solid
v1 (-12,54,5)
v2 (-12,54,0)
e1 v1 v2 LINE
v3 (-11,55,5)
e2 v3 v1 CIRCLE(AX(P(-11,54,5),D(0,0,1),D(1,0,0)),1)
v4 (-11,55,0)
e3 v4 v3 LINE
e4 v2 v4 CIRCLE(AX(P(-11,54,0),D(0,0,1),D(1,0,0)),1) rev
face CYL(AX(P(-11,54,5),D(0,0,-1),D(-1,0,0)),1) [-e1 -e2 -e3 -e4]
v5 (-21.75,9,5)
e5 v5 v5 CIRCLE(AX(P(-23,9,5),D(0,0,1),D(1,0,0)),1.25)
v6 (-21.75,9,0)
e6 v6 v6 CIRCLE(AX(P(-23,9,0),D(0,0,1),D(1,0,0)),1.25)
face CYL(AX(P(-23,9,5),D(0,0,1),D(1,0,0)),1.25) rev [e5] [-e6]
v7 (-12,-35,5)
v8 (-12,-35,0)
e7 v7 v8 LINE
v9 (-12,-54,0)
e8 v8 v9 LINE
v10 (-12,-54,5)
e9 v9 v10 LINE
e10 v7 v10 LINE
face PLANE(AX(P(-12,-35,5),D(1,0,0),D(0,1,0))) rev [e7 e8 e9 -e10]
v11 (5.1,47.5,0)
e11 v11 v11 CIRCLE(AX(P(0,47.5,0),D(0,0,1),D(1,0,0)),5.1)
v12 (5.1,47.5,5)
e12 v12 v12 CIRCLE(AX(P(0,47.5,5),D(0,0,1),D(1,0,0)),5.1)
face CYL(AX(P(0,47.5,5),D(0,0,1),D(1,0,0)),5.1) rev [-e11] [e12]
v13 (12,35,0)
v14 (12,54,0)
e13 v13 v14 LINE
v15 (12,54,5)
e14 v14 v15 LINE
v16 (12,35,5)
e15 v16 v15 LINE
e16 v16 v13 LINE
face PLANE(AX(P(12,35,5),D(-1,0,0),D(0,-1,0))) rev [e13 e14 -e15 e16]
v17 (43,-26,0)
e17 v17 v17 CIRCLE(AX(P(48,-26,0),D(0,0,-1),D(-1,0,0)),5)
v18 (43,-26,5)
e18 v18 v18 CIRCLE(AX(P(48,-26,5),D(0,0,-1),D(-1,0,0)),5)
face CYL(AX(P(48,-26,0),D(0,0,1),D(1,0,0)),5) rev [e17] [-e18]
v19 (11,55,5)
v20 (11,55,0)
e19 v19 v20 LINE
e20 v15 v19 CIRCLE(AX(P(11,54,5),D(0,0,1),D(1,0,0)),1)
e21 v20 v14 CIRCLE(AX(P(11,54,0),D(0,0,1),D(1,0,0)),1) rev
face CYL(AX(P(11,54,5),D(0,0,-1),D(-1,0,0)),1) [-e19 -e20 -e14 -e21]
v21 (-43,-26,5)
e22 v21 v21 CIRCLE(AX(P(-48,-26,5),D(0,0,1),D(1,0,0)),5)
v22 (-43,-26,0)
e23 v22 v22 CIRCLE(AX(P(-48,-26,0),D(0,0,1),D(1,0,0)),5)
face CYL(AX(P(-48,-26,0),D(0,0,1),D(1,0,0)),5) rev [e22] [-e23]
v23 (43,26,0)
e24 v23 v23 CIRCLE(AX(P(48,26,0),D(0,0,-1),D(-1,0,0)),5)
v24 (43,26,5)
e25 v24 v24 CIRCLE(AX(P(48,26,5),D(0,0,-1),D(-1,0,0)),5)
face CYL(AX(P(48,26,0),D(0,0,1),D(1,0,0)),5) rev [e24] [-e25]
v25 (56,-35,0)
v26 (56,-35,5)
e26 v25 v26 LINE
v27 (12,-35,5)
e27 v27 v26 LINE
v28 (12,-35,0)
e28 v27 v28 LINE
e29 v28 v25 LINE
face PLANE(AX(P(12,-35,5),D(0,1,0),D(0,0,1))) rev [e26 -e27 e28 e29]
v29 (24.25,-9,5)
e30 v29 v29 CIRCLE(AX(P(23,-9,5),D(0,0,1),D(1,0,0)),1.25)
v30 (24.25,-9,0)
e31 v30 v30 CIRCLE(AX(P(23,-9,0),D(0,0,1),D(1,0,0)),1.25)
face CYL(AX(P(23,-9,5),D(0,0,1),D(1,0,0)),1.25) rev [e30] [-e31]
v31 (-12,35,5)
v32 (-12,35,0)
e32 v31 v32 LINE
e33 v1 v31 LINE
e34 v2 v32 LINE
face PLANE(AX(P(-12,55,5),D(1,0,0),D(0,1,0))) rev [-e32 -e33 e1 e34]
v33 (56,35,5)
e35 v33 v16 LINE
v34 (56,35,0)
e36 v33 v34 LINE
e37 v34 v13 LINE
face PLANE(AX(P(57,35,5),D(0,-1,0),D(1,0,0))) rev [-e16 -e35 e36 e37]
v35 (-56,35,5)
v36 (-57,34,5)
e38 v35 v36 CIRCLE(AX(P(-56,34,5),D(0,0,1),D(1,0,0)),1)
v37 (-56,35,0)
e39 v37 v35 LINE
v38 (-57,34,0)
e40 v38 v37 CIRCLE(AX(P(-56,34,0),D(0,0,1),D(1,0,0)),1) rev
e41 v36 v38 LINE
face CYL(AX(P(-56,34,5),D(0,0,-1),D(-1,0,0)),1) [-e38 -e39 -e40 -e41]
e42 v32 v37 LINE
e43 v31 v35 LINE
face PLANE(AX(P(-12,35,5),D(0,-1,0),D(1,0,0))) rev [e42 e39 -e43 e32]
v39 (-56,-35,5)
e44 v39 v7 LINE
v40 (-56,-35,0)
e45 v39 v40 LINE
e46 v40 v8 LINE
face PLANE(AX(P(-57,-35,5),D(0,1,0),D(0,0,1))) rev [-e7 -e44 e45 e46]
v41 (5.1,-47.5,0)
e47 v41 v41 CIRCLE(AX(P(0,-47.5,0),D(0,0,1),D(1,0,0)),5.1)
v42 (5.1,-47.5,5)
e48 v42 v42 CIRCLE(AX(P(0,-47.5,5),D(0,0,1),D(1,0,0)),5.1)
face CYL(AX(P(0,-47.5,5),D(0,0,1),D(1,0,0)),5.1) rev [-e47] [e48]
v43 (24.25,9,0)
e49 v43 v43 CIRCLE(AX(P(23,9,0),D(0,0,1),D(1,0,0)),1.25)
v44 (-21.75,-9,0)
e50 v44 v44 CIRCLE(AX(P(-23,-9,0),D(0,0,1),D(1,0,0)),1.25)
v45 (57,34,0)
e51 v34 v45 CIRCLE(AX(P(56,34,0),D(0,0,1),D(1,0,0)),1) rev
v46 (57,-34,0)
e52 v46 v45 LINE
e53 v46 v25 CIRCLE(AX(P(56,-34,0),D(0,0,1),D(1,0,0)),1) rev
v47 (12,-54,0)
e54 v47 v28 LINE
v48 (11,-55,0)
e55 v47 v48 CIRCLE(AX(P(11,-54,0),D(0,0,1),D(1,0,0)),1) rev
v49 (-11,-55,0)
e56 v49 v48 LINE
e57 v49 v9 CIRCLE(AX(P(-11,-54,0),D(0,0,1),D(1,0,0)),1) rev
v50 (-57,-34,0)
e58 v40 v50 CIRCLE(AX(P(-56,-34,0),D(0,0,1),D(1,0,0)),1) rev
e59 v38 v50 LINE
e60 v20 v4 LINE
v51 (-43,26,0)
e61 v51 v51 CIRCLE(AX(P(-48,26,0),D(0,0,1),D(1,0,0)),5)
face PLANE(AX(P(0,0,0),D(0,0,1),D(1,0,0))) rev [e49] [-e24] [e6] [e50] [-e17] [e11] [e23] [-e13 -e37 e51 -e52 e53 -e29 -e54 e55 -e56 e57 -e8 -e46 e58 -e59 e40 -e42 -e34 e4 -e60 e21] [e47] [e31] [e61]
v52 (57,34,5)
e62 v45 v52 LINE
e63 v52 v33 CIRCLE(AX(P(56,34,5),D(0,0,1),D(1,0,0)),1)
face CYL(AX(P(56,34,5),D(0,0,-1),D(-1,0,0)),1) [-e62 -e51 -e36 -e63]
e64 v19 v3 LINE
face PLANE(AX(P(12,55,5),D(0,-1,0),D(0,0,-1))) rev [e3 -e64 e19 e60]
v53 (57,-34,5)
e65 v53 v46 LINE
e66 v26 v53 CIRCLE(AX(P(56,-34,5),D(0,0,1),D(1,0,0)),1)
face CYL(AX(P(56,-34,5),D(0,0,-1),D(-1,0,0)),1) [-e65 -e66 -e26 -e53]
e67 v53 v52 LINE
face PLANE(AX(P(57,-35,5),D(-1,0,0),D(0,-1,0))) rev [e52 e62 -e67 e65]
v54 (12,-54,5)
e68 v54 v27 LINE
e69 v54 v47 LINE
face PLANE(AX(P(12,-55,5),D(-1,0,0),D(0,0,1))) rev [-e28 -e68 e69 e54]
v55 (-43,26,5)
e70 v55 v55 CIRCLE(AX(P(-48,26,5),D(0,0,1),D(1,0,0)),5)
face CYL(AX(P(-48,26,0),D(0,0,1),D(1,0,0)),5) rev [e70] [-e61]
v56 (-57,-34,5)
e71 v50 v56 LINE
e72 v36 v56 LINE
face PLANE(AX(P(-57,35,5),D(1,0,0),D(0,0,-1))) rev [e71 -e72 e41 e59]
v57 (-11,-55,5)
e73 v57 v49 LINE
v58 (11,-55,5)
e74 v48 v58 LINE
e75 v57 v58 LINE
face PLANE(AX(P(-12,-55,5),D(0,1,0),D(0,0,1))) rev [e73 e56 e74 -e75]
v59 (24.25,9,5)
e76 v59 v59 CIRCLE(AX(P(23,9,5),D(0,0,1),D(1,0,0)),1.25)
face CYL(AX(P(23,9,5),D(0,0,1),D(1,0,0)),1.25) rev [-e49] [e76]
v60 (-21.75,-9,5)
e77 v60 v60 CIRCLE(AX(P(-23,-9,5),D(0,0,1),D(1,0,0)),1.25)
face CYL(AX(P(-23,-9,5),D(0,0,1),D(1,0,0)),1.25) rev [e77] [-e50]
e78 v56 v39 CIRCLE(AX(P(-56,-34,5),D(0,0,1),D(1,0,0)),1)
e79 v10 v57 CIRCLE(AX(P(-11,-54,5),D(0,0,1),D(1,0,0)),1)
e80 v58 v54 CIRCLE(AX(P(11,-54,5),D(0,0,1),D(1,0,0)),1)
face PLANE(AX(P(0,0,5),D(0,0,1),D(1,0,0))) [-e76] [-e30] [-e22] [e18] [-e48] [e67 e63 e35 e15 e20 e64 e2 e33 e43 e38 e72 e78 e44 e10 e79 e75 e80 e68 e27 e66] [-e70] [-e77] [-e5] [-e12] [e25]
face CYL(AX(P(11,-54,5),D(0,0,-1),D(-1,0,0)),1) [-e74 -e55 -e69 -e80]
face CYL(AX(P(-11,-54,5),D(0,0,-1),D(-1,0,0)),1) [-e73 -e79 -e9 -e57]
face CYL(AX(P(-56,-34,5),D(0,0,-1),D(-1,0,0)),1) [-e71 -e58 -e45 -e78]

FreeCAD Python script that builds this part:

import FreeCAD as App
import Part
import Sketcher


def edges_at(feature, points):
    """Names of the edges that pass closest to the given points."""
    edges = feature.Shape.Edges
    near = lambda p: min(range(len(edges)), key=lambda i: edges[i].distToShape(Part.Vertex(*p))[0])
    return sorted({f"Edge{near(p) + 1}" for p in points})

doc = App.newDocument("Part")
params = doc.addObject("Spreadsheet::Sheet", "Params")
for row, (alias, value) in enumerate([
    ("sketch1_width", "45 mm"),
    ("sketch1_width2", "24 mm"),
    ("sketch1_height", "70 mm"),
    ("sketch1_height2", "20 mm"),
    ("pad1_length", "5 mm"),
    ("fillet_radius", "1 mm"),
    ("sketch2_diameter", "2.5 mm"),
    ("hole_diameter", "2.5 mm"),
    ("sketch3_diameter", "10 mm"),
    ("pocket1_length", "5 mm"),
    ("sketch4_diameter", "10.2 mm"),
    ("hole2_diameter", "10.2 mm"),
], start=1):
    params.set(f"A{row}", alias)
    params.set(f"B{row}", "=" + value)
    params.setAlias(f"B{row}", alias)

body = doc.addObject("PartDesign::Body", "Body")

# Sketch on XY plane
sketch1 = body.newObject("Sketcher::SketchObject", "Sketch")
sketch1.AttachmentSupport = (doc.getObject("XY_Plane"), [""])
sketch1.MapMode = "FlatFace"
sketch1.addGeometry([
    Part.LineSegment(App.Vector(-57, 35, 0), App.Vector(-57, -35, 0)),  # 0
    Part.LineSegment(App.Vector(-57, -35, 0), App.Vector(-12, -35, 0)),  # 1
    Part.LineSegment(App.Vector(-12, -35, 0), App.Vector(-12, -55, 0)),  # 2
    Part.LineSegment(App.Vector(-12, -55, 0), App.Vector(12, -55, 0)),  # 3
    Part.LineSegment(App.Vector(12, -55, 0), App.Vector(12, -35, 0)),  # 4
    Part.LineSegment(App.Vector(12, -35, 0), App.Vector(57, -35, 0)),  # 5
    Part.LineSegment(App.Vector(57, -35, 0), App.Vector(57, 35, 0)),  # 6
    Part.LineSegment(App.Vector(57, 35, 0), App.Vector(12, 35, 0)),  # 7
    Part.LineSegment(App.Vector(12, 35, 0), App.Vector(12, 55, 0)),  # 8
    Part.LineSegment(App.Vector(12, 55, 0), App.Vector(-12, 55, 0)),  # 9
    Part.LineSegment(App.Vector(-12, 55, 0), App.Vector(-12, 35, 0)),  # 10
    Part.LineSegment(App.Vector(-12, 35, 0), App.Vector(-57, 35, 0)),  # 11
], False)
sketch1.addConstraint([
    Sketcher.Constraint("Coincident", 0, 2, 1, 1),
    Sketcher.Constraint("Coincident", 1, 2, 2, 1),
    Sketcher.Constraint("Coincident", 2, 2, 3, 1),
    Sketcher.Constraint("Coincident", 3, 2, 4, 1),
    Sketcher.Constraint("Coincident", 4, 2, 5, 1),
    Sketcher.Constraint("Coincident", 5, 2, 6, 1),
    Sketcher.Constraint("Coincident", 6, 2, 7, 1),
    Sketcher.Constraint("Coincident", 7, 2, 8, 1),
    Sketcher.Constraint("Coincident", 8, 2, 9, 1),
    Sketcher.Constraint("Coincident", 9, 2, 10, 1),
    Sketcher.Constraint("Coincident", 10, 2, 11, 1),
    Sketcher.Constraint("Coincident", 11, 2, 0, 1),
    Sketcher.Constraint("Vertical", 0),
    Sketcher.Constraint("Horizontal", 1),
    Sketcher.Constraint("Vertical", 2),
    Sketcher.Constraint("Horizontal", 3),
    Sketcher.Constraint("Vertical", 4),
    Sketcher.Constraint("Horizontal", 5),
    Sketcher.Constraint("Vertical", 6),
    Sketcher.Constraint("Horizontal", 7),
    Sketcher.Constraint("Vertical", 8),
    Sketcher.Constraint("Horizontal", 9),
    Sketcher.Constraint("Vertical", 10),
    Sketcher.Constraint("Horizontal", 11),
    Sketcher.Constraint("Symmetric", 0, 2, 6, 2, -1, 1),
    Sketcher.Constraint("Symmetric", 2, 2, 8, 2, -1, 1),
    Sketcher.Constraint("Symmetric", 4, 2, 10, 2, -1, 1),
    Sketcher.Constraint("Symmetric", 1, 2, 4, 2, -2),
    Sketcher.Constraint("DistanceX", 1, 1, 1, 2, 45.0),
    Sketcher.Constraint("DistanceX", 3, 1, 3, 2, 24.0),
    Sketcher.Constraint("DistanceY", 0, 2, 0, 1, 70.0),
    Sketcher.Constraint("DistanceY", 2, 2, 2, 1, 20.0),
])
sketch1.setExpression("Constraints[28]", "Params.sketch1_width")
sketch1.setExpression("Constraints[29]", "Params.sketch1_width2")
sketch1.setExpression("Constraints[30]", "Params.sketch1_height")
sketch1.setExpression("Constraints[31]", "Params.sketch1_height2")
pad1 = body.newObject("PartDesign::Pad", "Pad")
pad1.Profile = sketch1
pad1.setExpression("Length", "Params.pad1_length")
doc.recompute()

fillet = body.newObject("PartDesign::Fillet", "Fillet")
fillet.Base = (pad1, edges_at(pad1, [
    (-12, 55, 2.5),
    (12, 55, 2.5),
    (57, 35, 2.5),
    (57, -35, 2.5),
    (12, -55, 2.5),
    (-12, -55, 2.5),
    (-57, -35, 2.5),
    (-57, 35, 2.5),
]))
fillet.setExpression("Radius", "Params.fillet_radius")

# Sketch on XY plane
sketch2 = body.newObject("Sketcher::SketchObject", "Sketch001")
sketch2.AttachmentSupport = (doc.getObject("XY_Plane"), [""])
sketch2.MapMode = "FlatFace"
sketch2.AttachmentOffset = App.Placement(App.Vector(0, 0, 5), App.Rotation())
sketch2.addGeometry([
    Part.Circle(App.Vector(-23, 9, 0), App.Vector(0, 0, 1), 1.2),
    Part.Circle(App.Vector(-23, -9, 0), App.Vector(0, 0, 1), 1.2),
], False)
sketch2.addConstraint([
    Sketcher.Constraint("Equal", 0, 1),
    Sketcher.Constraint("Symmetric", 0, 3, 1, 3, -1),
    Sketcher.Constraint("Diameter", 0, 2.5),
    Sketcher.Constraint("DistanceX", 0, 3, -1, 1, 23.0),
    Sketcher.Constraint("DistanceY", -1, 1, 0, 3, 9.0),
])
sketch2.setExpression("Constraints[2]", "Params.sketch2_diameter")
doc.recompute()
hole = body.newObject("PartDesign::Hole", "Hole")
hole.Profile = sketch2
hole.ThreadType = "None"
hole.setExpression("Diameter", "Params.hole_diameter")
hole.DepthType = "ThroughAll"
doc.recompute()

mirrored = body.newObject("PartDesign::Mirrored", "Mirrored")
mirrored.Originals = [hole]
mirrored.MirrorPlane = (doc.getObject("YZ_Plane"), [""])
body.Tip = mirrored

# Sketch on XY plane
sketch3 = body.newObject("Sketcher::SketchObject", "Sketch002")
sketch3.AttachmentSupport = (doc.getObject("XY_Plane"), [""])
sketch3.MapMode = "FlatFace"
sketch3.AttachmentOffset = App.Placement(App.Vector(0, 0, 5), App.Rotation())
sketch3.addGeometry([
    Part.Circle(App.Vector(-48, 26, 0), App.Vector(0, 0, 1), 5),
    Part.Circle(App.Vector(-48, -26, 0), App.Vector(0, 0, 1), 5),
], False)
sketch3.addConstraint([
    Sketcher.Constraint("Equal", 0, 1),
    Sketcher.Constraint("Symmetric", 0, 3, 1, 3, -1),
    Sketcher.Constraint("Diameter", 0, 10.0),
    Sketcher.Constraint("DistanceX", 0, 3, -1, 1, 48.0),
    Sketcher.Constraint("DistanceY", -1, 1, 0, 3, 26.0),
])
sketch3.setExpression("Constraints[2]", "Params.sketch3_diameter")
pocket1 = body.newObject("PartDesign::Pocket", "Pocket")
pocket1.Profile = sketch3
pocket1.setExpression("Length", "Params.pocket1_length")
doc.recompute()

mirrored2 = body.newObject("PartDesign::Mirrored", "Mirrored001")
mirrored2.Originals = [pocket1]
mirrored2.MirrorPlane = (doc.getObject("YZ_Plane"), [""])
body.Tip = mirrored2

# Sketch on XY plane
sketch4 = body.newObject("Sketcher::SketchObject", "Sketch003")
sketch4.AttachmentSupport = (doc.getObject("XY_Plane"), [""])
sketch4.MapMode = "FlatFace"
sketch4.AttachmentOffset = App.Placement(App.Vector(0, 0, 5), App.Rotation())
sketch4.addGeometry(Part.Circle(App.Vector(0, 48, 0), App.Vector(0, 0, 1), 5), False)
sketch4.addConstraint([
    Sketcher.Constraint("PointOnObject", 0, 3, -2),
    Sketcher.Constraint("Diameter", 0, 10.2),
    Sketcher.Constraint("DistanceY", -1, 1, 0, 3, 47.5),
])
sketch4.setExpression("Constraints[1]", "Params.sketch4_diameter")
doc.recompute()
hole2 = body.newObject("PartDesign::Hole", "Hole001")
hole2.Profile = sketch4
hole2.ThreadType = "None"
hole2.setExpression("Diameter", "Params.hole2_diameter")
hole2.DepthType = "ThroughAll"
doc.recompute()

mirrored3 = body.newObject("PartDesign::Mirrored", "Mirrored002")
mirrored3.Originals = [hole2]
mirrored3.MirrorPlane = (doc.getObject("XZ_Plane"), [""])
body.Tip = mirrored3

doc.recompute()
